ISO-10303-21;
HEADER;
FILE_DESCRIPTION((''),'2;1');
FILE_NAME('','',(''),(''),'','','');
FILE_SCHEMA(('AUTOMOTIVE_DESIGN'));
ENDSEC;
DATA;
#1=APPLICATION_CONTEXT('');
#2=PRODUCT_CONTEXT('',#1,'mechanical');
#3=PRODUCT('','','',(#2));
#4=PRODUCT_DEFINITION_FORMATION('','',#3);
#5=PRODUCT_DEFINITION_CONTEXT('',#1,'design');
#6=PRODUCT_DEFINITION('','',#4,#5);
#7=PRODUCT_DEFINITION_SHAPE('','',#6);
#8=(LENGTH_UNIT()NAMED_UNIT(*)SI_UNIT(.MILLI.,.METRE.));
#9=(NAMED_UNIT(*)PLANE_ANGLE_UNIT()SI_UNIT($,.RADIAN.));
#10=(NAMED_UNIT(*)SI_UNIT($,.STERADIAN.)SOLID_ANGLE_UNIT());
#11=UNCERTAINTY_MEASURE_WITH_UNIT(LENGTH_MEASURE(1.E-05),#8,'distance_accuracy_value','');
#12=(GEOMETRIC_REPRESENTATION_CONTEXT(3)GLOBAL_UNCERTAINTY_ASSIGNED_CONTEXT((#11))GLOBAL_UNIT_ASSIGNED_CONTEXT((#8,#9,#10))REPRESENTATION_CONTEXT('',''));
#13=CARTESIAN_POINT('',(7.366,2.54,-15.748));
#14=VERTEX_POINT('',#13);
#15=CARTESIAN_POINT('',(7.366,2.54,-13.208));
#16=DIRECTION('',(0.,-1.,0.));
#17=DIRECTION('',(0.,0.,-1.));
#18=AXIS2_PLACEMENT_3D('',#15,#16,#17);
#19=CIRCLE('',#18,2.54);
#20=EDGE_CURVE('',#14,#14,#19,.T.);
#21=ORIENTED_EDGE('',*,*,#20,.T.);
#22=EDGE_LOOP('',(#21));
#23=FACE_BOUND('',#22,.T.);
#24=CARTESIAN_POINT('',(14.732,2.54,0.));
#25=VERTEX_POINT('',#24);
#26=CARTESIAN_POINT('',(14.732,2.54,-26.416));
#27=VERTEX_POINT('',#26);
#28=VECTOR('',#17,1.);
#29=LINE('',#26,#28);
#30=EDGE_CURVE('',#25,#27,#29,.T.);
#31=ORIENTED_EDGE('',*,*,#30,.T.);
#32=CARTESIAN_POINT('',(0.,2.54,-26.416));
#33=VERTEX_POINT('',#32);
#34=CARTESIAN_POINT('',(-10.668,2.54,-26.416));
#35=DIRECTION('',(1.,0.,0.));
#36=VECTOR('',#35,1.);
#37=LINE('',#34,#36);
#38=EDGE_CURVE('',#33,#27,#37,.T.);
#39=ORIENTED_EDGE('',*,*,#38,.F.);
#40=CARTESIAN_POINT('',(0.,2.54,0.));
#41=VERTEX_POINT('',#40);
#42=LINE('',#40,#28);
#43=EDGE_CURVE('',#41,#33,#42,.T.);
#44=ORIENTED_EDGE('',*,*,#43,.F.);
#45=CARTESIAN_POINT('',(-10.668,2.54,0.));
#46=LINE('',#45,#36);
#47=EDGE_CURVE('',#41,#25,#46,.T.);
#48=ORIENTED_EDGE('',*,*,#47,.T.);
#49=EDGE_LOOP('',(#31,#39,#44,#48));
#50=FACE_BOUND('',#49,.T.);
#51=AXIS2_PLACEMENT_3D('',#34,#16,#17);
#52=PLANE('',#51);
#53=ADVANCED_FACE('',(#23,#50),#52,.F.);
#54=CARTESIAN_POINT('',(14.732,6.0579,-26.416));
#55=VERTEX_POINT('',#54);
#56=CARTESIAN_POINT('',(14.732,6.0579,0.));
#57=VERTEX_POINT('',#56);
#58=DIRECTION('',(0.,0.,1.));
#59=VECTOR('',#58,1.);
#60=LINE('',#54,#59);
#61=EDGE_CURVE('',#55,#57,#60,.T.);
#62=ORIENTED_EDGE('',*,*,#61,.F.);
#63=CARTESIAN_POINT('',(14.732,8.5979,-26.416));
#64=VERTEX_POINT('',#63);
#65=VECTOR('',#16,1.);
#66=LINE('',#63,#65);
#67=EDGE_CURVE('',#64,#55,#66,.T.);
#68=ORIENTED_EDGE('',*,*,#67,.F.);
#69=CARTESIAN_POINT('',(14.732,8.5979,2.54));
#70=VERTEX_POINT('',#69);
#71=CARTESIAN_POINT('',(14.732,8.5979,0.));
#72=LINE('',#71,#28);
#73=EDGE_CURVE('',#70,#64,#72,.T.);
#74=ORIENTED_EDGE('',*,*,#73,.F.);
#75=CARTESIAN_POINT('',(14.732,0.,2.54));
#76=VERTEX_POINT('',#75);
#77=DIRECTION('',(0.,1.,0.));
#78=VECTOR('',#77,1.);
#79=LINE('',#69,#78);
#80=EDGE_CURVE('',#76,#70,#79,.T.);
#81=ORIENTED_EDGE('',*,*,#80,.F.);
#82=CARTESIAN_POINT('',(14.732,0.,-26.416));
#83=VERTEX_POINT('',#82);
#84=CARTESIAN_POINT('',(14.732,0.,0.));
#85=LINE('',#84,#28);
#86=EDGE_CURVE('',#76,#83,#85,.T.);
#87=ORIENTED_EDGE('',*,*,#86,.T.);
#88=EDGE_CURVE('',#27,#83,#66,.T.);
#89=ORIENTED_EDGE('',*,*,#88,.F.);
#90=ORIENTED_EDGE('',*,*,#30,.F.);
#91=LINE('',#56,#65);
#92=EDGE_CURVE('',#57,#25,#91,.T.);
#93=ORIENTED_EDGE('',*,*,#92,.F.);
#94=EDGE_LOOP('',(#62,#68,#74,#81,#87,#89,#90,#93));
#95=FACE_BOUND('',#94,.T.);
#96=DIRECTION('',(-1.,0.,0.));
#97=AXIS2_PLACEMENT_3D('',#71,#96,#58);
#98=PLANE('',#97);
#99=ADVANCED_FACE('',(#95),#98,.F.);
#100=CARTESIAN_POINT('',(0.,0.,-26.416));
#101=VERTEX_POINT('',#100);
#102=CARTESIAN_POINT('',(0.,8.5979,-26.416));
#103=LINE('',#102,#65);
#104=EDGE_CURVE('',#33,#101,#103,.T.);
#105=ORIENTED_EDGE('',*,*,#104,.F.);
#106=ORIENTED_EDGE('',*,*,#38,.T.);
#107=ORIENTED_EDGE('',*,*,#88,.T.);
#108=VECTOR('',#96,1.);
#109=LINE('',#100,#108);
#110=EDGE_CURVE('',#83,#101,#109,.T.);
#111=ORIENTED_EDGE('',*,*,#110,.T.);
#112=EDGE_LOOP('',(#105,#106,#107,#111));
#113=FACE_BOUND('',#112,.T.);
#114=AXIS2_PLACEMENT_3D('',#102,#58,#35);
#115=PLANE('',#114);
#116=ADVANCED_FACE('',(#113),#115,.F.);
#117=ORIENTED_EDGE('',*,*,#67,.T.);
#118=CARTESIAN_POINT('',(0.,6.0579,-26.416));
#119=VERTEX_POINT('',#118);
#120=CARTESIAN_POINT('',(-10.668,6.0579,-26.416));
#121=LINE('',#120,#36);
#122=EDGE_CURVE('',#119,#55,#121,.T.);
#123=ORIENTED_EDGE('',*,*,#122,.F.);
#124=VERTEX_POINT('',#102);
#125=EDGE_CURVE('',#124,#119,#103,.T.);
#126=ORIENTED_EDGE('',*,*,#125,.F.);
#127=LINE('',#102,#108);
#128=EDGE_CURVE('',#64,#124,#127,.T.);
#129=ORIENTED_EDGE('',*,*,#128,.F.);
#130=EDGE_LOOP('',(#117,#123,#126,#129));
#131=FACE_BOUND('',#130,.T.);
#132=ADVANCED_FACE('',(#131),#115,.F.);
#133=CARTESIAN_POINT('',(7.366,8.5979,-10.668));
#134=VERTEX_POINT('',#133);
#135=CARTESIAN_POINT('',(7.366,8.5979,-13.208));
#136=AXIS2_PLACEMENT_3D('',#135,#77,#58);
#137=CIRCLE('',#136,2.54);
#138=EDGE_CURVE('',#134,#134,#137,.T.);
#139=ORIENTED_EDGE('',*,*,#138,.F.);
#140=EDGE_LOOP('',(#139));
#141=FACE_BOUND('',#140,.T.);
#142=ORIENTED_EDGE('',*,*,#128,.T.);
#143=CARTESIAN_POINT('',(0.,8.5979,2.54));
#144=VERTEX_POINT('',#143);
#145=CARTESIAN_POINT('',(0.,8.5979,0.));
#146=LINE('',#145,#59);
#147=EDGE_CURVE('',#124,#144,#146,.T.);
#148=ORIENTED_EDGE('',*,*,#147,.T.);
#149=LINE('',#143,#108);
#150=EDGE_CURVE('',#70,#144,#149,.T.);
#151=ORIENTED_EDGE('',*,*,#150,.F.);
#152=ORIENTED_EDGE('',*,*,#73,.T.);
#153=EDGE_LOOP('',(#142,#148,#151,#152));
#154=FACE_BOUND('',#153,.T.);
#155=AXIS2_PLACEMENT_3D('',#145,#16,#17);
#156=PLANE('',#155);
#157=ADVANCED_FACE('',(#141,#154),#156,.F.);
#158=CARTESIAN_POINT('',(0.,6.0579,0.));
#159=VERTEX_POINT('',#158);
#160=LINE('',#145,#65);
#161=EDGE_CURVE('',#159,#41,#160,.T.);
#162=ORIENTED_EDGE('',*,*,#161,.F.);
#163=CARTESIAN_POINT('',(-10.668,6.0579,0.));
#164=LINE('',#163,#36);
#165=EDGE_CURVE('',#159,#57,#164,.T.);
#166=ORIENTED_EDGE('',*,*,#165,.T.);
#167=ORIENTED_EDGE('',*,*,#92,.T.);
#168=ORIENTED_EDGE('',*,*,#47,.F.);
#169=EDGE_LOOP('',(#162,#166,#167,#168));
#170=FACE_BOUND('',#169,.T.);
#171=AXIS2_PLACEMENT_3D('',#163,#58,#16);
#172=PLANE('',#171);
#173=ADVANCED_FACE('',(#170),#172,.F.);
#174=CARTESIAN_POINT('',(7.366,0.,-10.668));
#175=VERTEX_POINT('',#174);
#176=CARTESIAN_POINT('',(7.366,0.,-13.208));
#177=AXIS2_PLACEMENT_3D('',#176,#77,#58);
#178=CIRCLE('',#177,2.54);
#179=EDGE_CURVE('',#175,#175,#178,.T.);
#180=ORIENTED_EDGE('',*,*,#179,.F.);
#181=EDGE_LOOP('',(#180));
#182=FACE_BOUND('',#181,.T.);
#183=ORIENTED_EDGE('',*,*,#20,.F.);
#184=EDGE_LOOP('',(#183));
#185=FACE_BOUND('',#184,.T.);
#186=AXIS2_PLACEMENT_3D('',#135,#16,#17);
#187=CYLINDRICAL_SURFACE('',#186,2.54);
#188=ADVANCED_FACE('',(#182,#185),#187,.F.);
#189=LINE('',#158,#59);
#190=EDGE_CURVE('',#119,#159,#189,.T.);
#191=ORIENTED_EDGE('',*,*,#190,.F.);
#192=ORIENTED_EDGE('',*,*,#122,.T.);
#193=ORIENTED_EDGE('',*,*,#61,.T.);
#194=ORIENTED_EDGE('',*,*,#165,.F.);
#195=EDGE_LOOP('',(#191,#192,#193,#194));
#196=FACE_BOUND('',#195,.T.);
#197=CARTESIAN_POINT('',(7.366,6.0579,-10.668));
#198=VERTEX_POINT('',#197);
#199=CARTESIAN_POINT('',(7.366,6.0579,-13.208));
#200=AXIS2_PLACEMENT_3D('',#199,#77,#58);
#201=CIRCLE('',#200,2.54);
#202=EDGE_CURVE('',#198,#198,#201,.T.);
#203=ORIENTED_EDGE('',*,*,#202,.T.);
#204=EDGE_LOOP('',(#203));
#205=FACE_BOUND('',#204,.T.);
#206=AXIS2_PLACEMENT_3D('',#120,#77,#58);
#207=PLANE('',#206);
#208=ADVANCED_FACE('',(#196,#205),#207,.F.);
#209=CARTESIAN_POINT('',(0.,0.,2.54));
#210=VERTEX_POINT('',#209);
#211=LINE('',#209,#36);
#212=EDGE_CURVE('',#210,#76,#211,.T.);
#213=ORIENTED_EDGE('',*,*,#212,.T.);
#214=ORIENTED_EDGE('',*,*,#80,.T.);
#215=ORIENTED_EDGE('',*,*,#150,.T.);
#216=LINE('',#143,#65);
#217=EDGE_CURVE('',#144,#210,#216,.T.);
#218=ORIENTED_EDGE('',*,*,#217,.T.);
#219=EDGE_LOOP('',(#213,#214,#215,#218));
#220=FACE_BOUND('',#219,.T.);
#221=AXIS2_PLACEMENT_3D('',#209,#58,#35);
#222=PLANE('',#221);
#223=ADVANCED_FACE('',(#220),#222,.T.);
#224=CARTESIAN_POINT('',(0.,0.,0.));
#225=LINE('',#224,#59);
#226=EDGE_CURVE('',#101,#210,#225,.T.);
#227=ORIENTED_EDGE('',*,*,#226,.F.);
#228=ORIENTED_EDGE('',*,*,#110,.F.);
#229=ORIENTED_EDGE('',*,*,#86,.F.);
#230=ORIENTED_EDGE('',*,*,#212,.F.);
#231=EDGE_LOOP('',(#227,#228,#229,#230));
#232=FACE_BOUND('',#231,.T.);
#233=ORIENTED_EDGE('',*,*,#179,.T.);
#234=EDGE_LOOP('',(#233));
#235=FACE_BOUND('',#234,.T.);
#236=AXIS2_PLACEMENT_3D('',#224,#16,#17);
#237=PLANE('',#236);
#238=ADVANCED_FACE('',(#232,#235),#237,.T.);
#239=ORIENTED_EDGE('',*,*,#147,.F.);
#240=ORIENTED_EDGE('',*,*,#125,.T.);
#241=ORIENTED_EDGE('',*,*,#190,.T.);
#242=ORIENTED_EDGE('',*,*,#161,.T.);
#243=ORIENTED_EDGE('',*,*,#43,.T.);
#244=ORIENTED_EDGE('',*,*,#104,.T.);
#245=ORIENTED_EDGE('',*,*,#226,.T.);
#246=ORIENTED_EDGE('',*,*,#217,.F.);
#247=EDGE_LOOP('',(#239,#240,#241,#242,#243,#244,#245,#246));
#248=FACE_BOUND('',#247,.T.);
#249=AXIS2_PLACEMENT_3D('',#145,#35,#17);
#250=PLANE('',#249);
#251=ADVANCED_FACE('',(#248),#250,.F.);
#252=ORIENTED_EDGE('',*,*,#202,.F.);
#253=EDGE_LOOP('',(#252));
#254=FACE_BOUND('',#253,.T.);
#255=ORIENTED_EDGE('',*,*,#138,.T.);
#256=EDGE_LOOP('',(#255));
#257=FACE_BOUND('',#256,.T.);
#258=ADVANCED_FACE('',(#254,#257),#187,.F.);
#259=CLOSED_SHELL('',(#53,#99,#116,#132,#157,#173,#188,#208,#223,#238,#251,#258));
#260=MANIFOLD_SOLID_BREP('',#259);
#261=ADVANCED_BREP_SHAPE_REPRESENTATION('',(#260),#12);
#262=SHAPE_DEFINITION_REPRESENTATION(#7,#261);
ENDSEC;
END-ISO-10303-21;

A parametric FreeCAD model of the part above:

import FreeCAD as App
import Part
import Sketcher
Q = App.Units.Quantity

doc = App.newDocument("Part")
body = doc.addObject("PartDesign::Body", "Body")

# Sketch on XZ plane
sketch1 = body.newObject("Sketcher::SketchObject", "Sketch")
sketch1.AttachmentSupport = (doc.getObject("XZ_Plane"), [""])
sketch1.MapMode = "FlatFace"
sketch1.addGeometry(Part.LineSegment(App.Vector(0, -26.4, 0), App.Vector(0, 0, 0)), False)
sketch1.addGeometry(Part.LineSegment(App.Vector(0, 0, 0), App.Vector(14.7, 0, 0)), False)
sketch1.addGeometry(Part.LineSegment(App.Vector(14.7, 0, 0), App.Vector(14.7, -26.4, 0)), False)
sketch1.addGeometry(Part.LineSegment(App.Vector(14.7, -26.4, 0), App.Vector(0, -26.4, 0)), False)
sketch1.addGeometry(Part.Circle(App.Vector(7.4, -13.2, 0), App.Vector(0, 0, 1), 2.5), False)
sketch1.addConstraint(Sketcher.Constraint("Coincident", 0, 2, 1, 1))
sketch1.addConstraint(Sketcher.Constraint("Coincident", 1, 2, 2, 1))
sketch1.addConstraint(Sketcher.Constraint("Coincident", 2, 2, 3, 1))
sketch1.addConstraint(Sketcher.Constraint("Coincident", 3, 2, 0, 1))
sketch1.addConstraint(Sketcher.Constraint("Vertical", 0))
sketch1.addConstraint(Sketcher.Constraint("Horizontal", 1))
sketch1.addConstraint(Sketcher.Constraint("Vertical", 2))
sketch1.addConstraint(Sketcher.Constraint("Horizontal", 3))
sketch1.addConstraint(Sketcher.Constraint("Coincident", 0, 2, -1, 1))
sketch1.addConstraint(Sketcher.Constraint("Diameter", 4, Q("0.2 in")))
sketch1.addConstraint(Sketcher.Constraint("DistanceX", 1, 1, 1, 2, Q("0.58 in")))
sketch1.addConstraint(Sketcher.Constraint("DistanceY", 0, 1, 0, 2, Q("1.04 in")))
sketch1.addConstraint(Sketcher.Constraint("DistanceX", -1, 1, 4, 3, Q("0.29 in")))
sketch1.addConstraint(Sketcher.Constraint("DistanceY", 4, 3, -1, 1, Q("0.52 in")))
pad1 = body.newObject("PartDesign::Pad", "Pad")
pad1.Profile = sketch1
pad1.Length = Q("0.3385 in")
pad1.Reversed = True

# Sketch on XY plane
sketch2 = body.newObject("Sketcher::SketchObject", "Sketch001")
sketch2.AttachmentSupport = (doc.getObject("XY_Plane"), [""])
sketch2.MapMode = "FlatFace"
sketch2.addGeometry(Part.LineSegment(App.Vector(0, 9, 0), App.Vector(0, 0, 0)), False)
sketch2.addGeometry(Part.LineSegment(App.Vector(0, 0, 0), App.Vector(15, 0, 0)), False)
sketch2.addGeometry(Part.LineSegment(App.Vector(15, 0, 0), App.Vector(15, 9, 0)), False)
sketch2.addGeometry(Part.LineSegment(App.Vector(15, 9, 0), App.Vector(0, 9, 0)), False)
sketch2.addConstraint(Sketcher.Constraint("Coincident", 0, 2, 1, 1))
sketch2.addConstraint(Sketcher.Constraint("Coincident", 1, 2, 2, 1))
sketch2.addConstraint(Sketcher.Constraint("Coincident", 2, 2, 3, 1))
sketch2.addConstraint(Sketcher.Constraint("Coincident", 3, 2, 0, 1))
sketch2.addConstraint(Sketcher.Constraint("Vertical", 0))
sketch2.addConstraint(Sketcher.Constraint("Horizontal", 1))
sketch2.addConstraint(Sketcher.Constraint("Vertical", 2))
sketch2.addConstraint(Sketcher.Constraint("Horizontal", 3))
sketch2.addConstraint(Sketcher.Constraint("Coincident", 0, 2, -1, 1))
sketch2.addConstraint(Sketcher.Constraint("DistanceX", 1, 1, 1, 2, Q("0.58 in")))
sketch2.addConstraint(Sketcher.Constraint("DistanceY", 0, 2, 0, 1, Q("0.3385 in")))
pad2 = body.newObject("PartDesign::Pad", "Pad001")
pad2.Profile = sketch2
pad2.Length = Q("0.1 in")

# Sketch on YZ plane
sketch3 = body.newObject("Sketcher::SketchObject", "Sketch002")
sketch3.AttachmentSupport = (doc.getObject("YZ_Plane"), [""])
sketch3.MapMode = "FlatFace"
sketch3.AttachmentOffset = App.Placement(App.Vector(0, 0, 0.58 * 25.4), App.Rotation())
sketch3.addGeometry(Part.LineSegment(App.Vector(6.1, 0, 0), App.Vector(2.5, 0, 0)), False)
sketch3.addGeometry(Part.LineSegment(App.Vector(2.5, 0, 0), App.Vector(2.5, -26.4, 0)), False)
sketch3.addGeometry(Part.LineSegment(App.Vector(2.5, -26.4, 0), App.Vector(6.1, -26.4, 0)), False)
sketch3.addGeometry(Part.LineSegment(App.Vector(6.1, -26.4, 0), App.Vector(6.1, 0, 0)), False)
sketch3.addConstraint(Sketcher.Constraint("Coincident", 0, 2, 1, 1))
sketch3.addConstraint(Sketcher.Constraint("Coincident", 1, 2, 2, 1))
sketch3.addConstraint(Sketcher.Constraint("Coincident", 2, 2, 3, 1))
sketch3.addConstraint(Sketcher.Constraint("Coincident", 3, 2, 0, 1))
sketch3.addConstraint(Sketcher.Constraint("Horizontal", 0))
sketch3.addConstraint(Sketcher.Constraint("Vertical", 1))
sketch3.addConstraint(Sketcher.Constraint("Horizontal", 2))
sketch3.addConstraint(Sketcher.Constraint("Vertical", 3))
sketch3.addConstraint(Sketcher.Constraint("PointOnObject", 0, 2, -1))
sketch3.addConstraint(Sketcher.Constraint("DistanceY", 1, 2, 1, 1, Q("1.04 in")))
sketch3.addConstraint(Sketcher.Constraint("DistanceX", -1, 1, 0, 2, Q("0.1 in")))
sketch3.addConstraint(Sketcher.Constraint("DistanceX", 0, 2, 0, 1, Q("0.1385 in")))
pocket1 = body.newObject("PartDesign::Pocket", "Pocket")
pocket1.Profile = sketch3
pocket1.Length = Q("1 in")

doc.recompute()
